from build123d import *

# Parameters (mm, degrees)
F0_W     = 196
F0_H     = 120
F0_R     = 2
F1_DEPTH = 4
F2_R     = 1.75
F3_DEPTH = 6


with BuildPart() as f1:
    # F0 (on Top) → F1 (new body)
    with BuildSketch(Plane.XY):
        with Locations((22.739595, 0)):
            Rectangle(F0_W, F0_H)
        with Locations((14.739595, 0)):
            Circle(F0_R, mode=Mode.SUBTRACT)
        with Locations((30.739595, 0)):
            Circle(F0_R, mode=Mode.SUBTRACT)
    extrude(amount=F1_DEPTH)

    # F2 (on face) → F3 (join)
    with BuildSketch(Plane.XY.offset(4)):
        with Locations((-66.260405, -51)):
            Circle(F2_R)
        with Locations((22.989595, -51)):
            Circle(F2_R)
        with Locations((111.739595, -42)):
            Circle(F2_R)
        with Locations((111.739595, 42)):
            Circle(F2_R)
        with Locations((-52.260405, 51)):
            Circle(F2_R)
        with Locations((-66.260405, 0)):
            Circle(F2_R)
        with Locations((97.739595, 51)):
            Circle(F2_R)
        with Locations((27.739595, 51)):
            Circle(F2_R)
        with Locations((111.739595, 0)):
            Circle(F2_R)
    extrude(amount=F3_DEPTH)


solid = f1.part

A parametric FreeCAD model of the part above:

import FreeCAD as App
import Part
import Sketcher

V = App.Vector
Q = App.Units.Quantity


def add_polygon(sketch, points):
    """Adds a closed chain of lines whose ends are joined by coincident constraints."""
    first, n = sketch.GeometryCount, len(points)
    for a, b in zip(points, points[1:] + points[:1]):
        sketch.addGeometry(Part.LineSegment(App.Vector(*a, 0), App.Vector(*b, 0)), False)
    for i in range(n):
        sketch.addConstraint(Sketcher.Constraint("Coincident", first + i, 2, first + (i + 1) % n, 1))

doc = App.newDocument("Part")
body = doc.addObject("PartDesign::Body", "Body")

sketch1 = body.newObject("Sketcher::SketchObject", "Sketch")
sketch1.AttachmentSupport = (doc.getObject("XY_Plane"), [""])
sketch1.MapMode = "FlatFace"
add_polygon(sketch1, [(-75.260405, 60), (-75.260405, -60), (120.739595, -60), (120.739595, 60)])
sketch1.addGeometry(Part.Circle(V(14.739595, 0, 0), V(0, 0, 1), 2), False)
sketch1.addGeometry(Part.Circle(V(30.739595, 0, 0), V(0, 0, 1), 2), False)
sketch1.addConstraint(Sketcher.Constraint("Vertical", 0))
sketch1.addConstraint(Sketcher.Constraint("Horizontal", 1))
sketch1.addConstraint(Sketcher.Constraint("Vertical", 2))
sketch1.addConstraint(Sketcher.Constraint("Horizontal", 3))
sketch1.addConstraint(Sketcher.Constraint("Equal", 4, 5))
sketch1.addConstraint(Sketcher.Constraint("PointOnObject", 4, 3, -1))
sketch1.addConstraint(Sketcher.Constraint("PointOnObject", 5, 3, -1))
sketch1.addConstraint(Sketcher.Constraint("Diameter", 4, Q("4 mm")))
sketch1.addConstraint(Sketcher.Constraint("DistanceX", 1, 1, 1, 2, Q("196 mm")))
sketch1.addConstraint(Sketcher.Constraint("DistanceY", 0, 2, 0, 1, Q("120 mm")))
sketch1.addConstraint(Sketcher.Constraint("DistanceY", 0, 2, -1, 1, Q("60 mm")))
sketch1.addConstraint(Sketcher.Constraint("DistanceX", 4, 3, 5, 3, Q("16 mm")))
sketch1.addConstraint(Sketcher.Constraint("DistanceX", 0, 2, 4, 3, Q("90 mm")))
sketch1.addConstraint(Sketcher.Constraint("DistanceX", -1, 1, 4, 3, Q("14.739595 mm")))
pad1 = body.newObject("PartDesign::Pad", "Pad")
pad1.Profile = sketch1
pad1.Length = 4

sketch2 = body.newObject("Sketcher::SketchObject", "Sketch001")
sketch2.AttachmentSupport = (doc.getObject("XY_Plane"), [""])
sketch2.MapMode = "FlatFace"
sketch2.AttachmentOffset = App.Placement(V(0, 0, 4), App.Rotation())
sketch2.addGeometry(Part.Circle(V(-66.260405, -51, 0), V(0, 0, 1), 1.75), False)
sketch2.addGeometry(Part.Circle(V(22.989595, -51, 0), V(0, 0, 1), 1.75), False)
sketch2.addGeometry(Part.Circle(V(111.739595, -42, 0), V(0, 0, 1), 1.75), False)
sketch2.addGeometry(Part.Circle(V(111.739595, 42, 0), V(0, 0, 1), 1.75), False)
sketch2.addGeometry(Part.Circle(V(-52.260405, 51, 0), V(0, 0, 1), 1.75), False)
sketch2.addGeometry(Part.Circle(V(-66.260405, 0, 0), V(0, 0, 1), 1.75), False)
sketch2.addGeometry(Part.Circle(V(97.739595, 51, 0), V(0, 0, 1), 1.75), False)
sketch2.addGeometry(Part.Circle(V(27.739595, 51, 0), V(0, 0, 1), 1.75), False)
sketch2.addGeometry(Part.Circle(V(111.739595, 0, 0), V(0, 0, 1), 1.75), False)
sketch2.addConstraint(Sketcher.Constraint("Equal", 0, 1))
sketch2.addConstraint(Sketcher.Constraint("Equal", 1, 2))
sketch2.addConstraint(Sketcher.Constraint("Equal", 2, 3))
sketch2.addConstraint(Sketcher.Constraint("Equal", 3, 4))
sketch2.addConstraint(Sketcher.Constraint("Equal", 4, 5))
sketch2.addConstraint(Sketcher.Constraint("Equal", 5, 6))
sketch2.addConstraint(Sketcher.Constraint("Equal", 6, 7))
sketch2.addConstraint(Sketcher.Constraint("Equal", 7, 8))
sketch2.addConstraint(Sketcher.Constraint("Symmetric", 2, 3, 3, 3, -1))
sketch2.addConstraint(Sketcher.Constraint("PointOnObject", 5, 3, -1))
sketch2.addConstraint(Sketcher.Constraint("PointOnObject", 8, 3, -1))
sketch2.addConstraint(Sketcher.Constraint("Horizontal", 0, 3, 1, 3))
sketch2.addConstraint(Sketcher.Constraint("Horizontal", 4, 3, 6, 3))
sketch2.addConstraint(Sketcher.Constraint("Horizontal", 6, 3, 7, 3))
sketch2.addConstraint(Sketcher.Constraint("Vertical", 0, 3, 5, 3))
sketch2.addConstraint(Sketcher.Constraint("Vertical", 3, 3, 8, 3))
sketch2.addConstraint(Sketcher.Constraint("Diameter", 0, Q("3.5 mm")))
sketch2.addConstraint(Sketcher.Constraint("DistanceY", 0, 3, -1, 1, Q("51 mm")))
sketch2.addConstraint(Sketcher.Constraint("DistanceY", 2, 3, -1, 1, Q("42 mm")))
sketch2.addConstraint(Sketcher.Constraint("DistanceY", -1, 1, 4, 3, Q("51 mm")))
sketch2.addConstraint(Sketcher.Constraint("DistanceX", 0, 3, 2, 3, Q("178 mm")))
sketch2.addConstraint(Sketcher.Constraint("DistanceX", 0, 3, 4, 3, Q("14 mm")))
sketch2.addConstraint(Sketcher.Constraint("DistanceX", 6, 3, 3, 3, Q("14 mm")))
sketch2.addConstraint(Sketcher.Constraint("DistanceX", 7, 3, 6, 3, Q("70 mm")))
sketch2.addConstraint(Sketcher.Constraint("DistanceX", 0, 3, 1, 3, Q("89.25 mm")))
sketch2.addConstraint(Sketcher.Constraint("DistanceX", 0, 3, -1, 1, Q("66.260405 mm")))
pad2 = body.newObject("PartDesign::Pad", "Pad001")
pad2.Profile = sketch2
pad2.Length = 6

doc.recompute()
